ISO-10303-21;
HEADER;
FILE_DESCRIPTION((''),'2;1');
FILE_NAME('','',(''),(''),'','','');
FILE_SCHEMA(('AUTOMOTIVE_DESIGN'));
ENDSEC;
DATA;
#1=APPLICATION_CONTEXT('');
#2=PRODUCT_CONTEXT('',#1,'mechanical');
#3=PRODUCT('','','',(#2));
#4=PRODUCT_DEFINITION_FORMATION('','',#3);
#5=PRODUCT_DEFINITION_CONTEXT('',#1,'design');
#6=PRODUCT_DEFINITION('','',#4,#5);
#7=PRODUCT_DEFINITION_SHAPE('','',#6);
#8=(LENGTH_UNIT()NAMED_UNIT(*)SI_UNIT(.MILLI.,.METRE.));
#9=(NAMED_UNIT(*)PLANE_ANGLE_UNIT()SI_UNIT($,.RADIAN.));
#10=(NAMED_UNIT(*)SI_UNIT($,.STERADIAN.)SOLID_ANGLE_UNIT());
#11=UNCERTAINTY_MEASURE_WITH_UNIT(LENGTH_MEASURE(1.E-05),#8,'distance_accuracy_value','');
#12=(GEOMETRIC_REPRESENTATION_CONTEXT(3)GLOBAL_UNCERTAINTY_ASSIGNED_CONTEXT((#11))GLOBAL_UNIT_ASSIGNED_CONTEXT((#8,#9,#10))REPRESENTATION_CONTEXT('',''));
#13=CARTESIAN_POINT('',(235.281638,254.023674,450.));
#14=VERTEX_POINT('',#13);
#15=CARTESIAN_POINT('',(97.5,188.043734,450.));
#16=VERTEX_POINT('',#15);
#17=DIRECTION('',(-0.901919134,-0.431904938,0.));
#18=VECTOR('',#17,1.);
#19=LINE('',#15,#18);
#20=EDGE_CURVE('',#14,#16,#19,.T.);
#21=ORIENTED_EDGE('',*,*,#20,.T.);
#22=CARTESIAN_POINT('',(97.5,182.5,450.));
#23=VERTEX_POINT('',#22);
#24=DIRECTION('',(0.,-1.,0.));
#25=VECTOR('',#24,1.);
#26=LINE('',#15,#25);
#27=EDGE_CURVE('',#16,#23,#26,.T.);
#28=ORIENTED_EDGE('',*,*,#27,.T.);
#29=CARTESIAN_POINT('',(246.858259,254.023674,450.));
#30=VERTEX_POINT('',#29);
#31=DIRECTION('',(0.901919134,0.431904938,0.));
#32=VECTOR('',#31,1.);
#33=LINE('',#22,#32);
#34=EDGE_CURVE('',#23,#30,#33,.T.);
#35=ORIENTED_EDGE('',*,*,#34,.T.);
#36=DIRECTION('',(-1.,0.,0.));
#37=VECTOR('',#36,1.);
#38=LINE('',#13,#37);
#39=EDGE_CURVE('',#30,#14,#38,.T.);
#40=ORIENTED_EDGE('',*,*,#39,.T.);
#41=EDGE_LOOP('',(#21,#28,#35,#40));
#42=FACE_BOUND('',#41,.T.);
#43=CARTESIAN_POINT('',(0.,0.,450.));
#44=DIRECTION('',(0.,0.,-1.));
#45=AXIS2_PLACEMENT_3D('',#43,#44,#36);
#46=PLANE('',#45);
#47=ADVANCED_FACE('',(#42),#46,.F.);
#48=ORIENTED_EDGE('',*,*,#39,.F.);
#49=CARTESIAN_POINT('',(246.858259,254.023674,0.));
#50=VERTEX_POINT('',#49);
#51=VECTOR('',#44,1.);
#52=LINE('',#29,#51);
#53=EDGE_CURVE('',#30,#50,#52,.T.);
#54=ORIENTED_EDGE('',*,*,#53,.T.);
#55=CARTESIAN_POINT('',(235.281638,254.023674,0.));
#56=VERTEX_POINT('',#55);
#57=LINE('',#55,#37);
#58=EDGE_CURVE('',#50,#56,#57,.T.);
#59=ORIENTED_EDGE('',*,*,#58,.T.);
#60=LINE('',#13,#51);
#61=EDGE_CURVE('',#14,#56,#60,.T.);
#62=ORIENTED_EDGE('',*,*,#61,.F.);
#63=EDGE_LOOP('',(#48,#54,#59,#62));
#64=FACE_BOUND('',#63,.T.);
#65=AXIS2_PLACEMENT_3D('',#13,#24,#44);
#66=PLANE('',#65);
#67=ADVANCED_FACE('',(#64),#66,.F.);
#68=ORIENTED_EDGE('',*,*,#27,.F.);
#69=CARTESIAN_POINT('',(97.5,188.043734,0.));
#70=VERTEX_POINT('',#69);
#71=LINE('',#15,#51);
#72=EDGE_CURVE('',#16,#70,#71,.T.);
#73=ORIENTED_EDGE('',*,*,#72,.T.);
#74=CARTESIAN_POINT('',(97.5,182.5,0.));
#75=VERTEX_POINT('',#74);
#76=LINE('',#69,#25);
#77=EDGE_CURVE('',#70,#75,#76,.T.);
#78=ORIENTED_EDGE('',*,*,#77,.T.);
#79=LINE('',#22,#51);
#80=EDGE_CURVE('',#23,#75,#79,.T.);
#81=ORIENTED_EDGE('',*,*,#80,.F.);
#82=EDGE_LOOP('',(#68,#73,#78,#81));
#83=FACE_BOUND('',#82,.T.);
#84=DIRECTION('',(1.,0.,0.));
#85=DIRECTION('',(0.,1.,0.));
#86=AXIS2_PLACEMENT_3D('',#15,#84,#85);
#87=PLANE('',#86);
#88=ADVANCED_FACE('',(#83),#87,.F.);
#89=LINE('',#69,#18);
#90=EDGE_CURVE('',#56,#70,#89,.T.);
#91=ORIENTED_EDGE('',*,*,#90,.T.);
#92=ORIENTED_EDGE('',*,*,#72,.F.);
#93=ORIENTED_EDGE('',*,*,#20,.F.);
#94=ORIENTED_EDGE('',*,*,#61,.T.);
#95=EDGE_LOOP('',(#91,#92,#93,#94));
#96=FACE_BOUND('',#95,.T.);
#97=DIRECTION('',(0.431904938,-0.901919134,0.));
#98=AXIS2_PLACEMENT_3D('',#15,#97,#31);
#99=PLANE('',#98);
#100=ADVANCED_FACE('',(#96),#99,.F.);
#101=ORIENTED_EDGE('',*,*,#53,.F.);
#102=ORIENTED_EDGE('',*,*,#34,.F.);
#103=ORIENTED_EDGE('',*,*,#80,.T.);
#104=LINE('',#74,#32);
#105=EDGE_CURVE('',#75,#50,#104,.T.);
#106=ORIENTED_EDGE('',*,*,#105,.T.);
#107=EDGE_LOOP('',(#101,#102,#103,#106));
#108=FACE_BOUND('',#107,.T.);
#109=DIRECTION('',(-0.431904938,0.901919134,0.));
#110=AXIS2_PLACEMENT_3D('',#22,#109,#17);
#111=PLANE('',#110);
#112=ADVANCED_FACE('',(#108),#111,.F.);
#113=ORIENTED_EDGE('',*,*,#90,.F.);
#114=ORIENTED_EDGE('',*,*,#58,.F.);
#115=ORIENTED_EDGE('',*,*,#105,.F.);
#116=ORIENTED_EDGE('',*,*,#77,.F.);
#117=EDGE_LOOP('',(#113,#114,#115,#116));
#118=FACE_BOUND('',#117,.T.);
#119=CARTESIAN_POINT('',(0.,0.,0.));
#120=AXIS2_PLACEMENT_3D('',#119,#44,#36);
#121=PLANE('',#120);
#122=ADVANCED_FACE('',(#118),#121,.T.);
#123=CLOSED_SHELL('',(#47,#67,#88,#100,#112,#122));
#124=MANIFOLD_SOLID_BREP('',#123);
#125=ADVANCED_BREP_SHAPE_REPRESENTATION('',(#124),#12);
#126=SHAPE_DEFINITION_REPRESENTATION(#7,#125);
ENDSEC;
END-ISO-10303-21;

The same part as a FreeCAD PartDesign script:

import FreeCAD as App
import Part
import Sketcher

V = App.Vector


def add_polygon(sketch, points):
    """Adds a closed chain of lines whose ends are joined by coincident constraints."""
    first, n = sketch.GeometryCount, len(points)
    for a, b in zip(points, points[1:] + points[:1]):
        sketch.addGeometry(Part.LineSegment(App.Vector(*a, 0), App.Vector(*b, 0)), False)
    for i in range(n):
        sketch.addConstraint(Sketcher.Constraint("Coincident", first + i, 2, first + (i + 1) % n, 1))

doc = App.newDocument("Part")
body = doc.addObject("PartDesign::Body", "Body")

sketch1 = doc.addObject("Sketcher::SketchObject", "Sketch")
body.addObject(sketch1)
sketch1.AttachmentSupport = (doc.XY_Plane, [""])
sketch1.MapMode = "FlatFace"
add_polygon(sketch1, [(98, 188), (98, 182), (247, 254), (235, 254)])
sketch1.addConstraint([
    Sketcher.Constraint("Vertical", 0),
    Sketcher.Constraint("Horizontal", 2),
    Sketcher.Constraint("Parallel", 1, 3),
    Sketcher.Constraint("DistanceX", -1, 1, 0, 2, 97.5),
    Sketcher.Constraint("DistanceY", -1, 1, 0, 2, 182.5),
    Sketcher.Constraint("Distance", 1, 165.6005),
    Sketcher.Constraint("DistanceX", 2, 2, 2, 1, 11.576622),
    Sketcher.Constraint("DistanceY", 0, 2, 0, 1, 5.543734),
])
pad1 = doc.addObject("PartDesign::Pad", "Pad")
body.addObject(pad1)
pad1.Profile = sketch1
pad1.Length = 450

doc.recompute()
